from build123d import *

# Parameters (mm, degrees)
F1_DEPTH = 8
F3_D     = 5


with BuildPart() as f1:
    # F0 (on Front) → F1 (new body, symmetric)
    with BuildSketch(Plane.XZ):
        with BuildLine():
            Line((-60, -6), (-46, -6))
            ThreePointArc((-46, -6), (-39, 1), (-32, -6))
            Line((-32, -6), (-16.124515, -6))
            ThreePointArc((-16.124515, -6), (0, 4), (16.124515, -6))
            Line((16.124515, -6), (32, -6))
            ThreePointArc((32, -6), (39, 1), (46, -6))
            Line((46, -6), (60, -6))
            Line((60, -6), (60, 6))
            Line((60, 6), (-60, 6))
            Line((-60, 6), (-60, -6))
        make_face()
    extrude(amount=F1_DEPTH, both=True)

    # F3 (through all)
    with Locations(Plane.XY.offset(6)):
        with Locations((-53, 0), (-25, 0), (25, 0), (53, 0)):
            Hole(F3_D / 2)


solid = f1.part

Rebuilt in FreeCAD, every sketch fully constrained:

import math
import FreeCAD as App
import Part
import Sketcher
Q = App.Units.Quantity

doc = App.newDocument("Part")
body = doc.addObject("PartDesign::Body", "Body")

sketch1 = body.newObject("Sketcher::SketchObject", "Sketch")
sketch1.AttachmentSupport = (doc.getObject("XZ_Plane"), [""])
sketch1.MapMode = "FlatFace"
sketch1.addGeometry([
    Part.LineSegment(App.Vector(-60, -6, 0), App.Vector(-46, -6, 0)),
    Part.ArcOfCircle(Part.Circle(App.Vector(-39, -6, 0), App.Vector(0, 0, 1), 7), math.radians(0), math.radians(180)),
    Part.LineSegment(App.Vector(-32, -6, 0), App.Vector(-16, -6, 0)),
    Part.ArcOfCircle(Part.Circle(App.Vector(0, -14, 0), App.Vector(0, 0, 1), 18), math.radians(26), math.radians(154)),
    Part.LineSegment(App.Vector(16, -6, 0), App.Vector(32, -6, 0)),
    Part.ArcOfCircle(Part.Circle(App.Vector(39, -6, 0), App.Vector(0, 0, 1), 7), math.radians(0), math.radians(180)),
    Part.LineSegment(App.Vector(46, -6, 0), App.Vector(60, -6, 0)),
    Part.LineSegment(App.Vector(60, -6, 0), App.Vector(60, 6, 0)),
    Part.LineSegment(App.Vector(60, 6, 0), App.Vector(-60, 6, 0)),
    Part.LineSegment(App.Vector(-60, 6, 0), App.Vector(-60, -6, 0)),
], False)
sketch1.addConstraint([
    Sketcher.Constraint("Coincident", 0, 2, 1, 2),
    Sketcher.Constraint("Coincident", 1, 1, 2, 1),
    Sketcher.Constraint("Coincident", 2, 2, 3, 2),
    Sketcher.Constraint("Coincident", 3, 1, 4, 1),
    Sketcher.Constraint("Coincident", 4, 2, 5, 2),
    Sketcher.Constraint("Coincident", 5, 1, 6, 1),
    Sketcher.Constraint("Coincident", 6, 2, 7, 1),
    Sketcher.Constraint("Coincident", 7, 2, 8, 1),
    Sketcher.Constraint("Coincident", 8, 2, 9, 1),
    Sketcher.Constraint("Coincident", 9, 2, 0, 1),
    Sketcher.Constraint("Horizontal", 0),
    Sketcher.Constraint("Horizontal", 2),
    Sketcher.Constraint("Horizontal", 4),
    Sketcher.Constraint("Horizontal", 6),
    Sketcher.Constraint("Vertical", 7),
    Sketcher.Constraint("Horizontal", 8),
    Sketcher.Constraint("Vertical", 9),
    Sketcher.Constraint("Equal", 1, 5),
    Sketcher.Constraint("Symmetric", 6, 2, 8, 2, -1, 1),
    Sketcher.Constraint("Symmetric", 1, 3, 5, 3, -2),
    Sketcher.Constraint("Symmetric", 2, 2, 3, 1, -2),
    Sketcher.Constraint("Horizontal", 5, 3, 0, 2),
    Sketcher.Constraint("Horizontal", 0, 2, 1, 1),
    Sketcher.Constraint("Horizontal", 4, 2, 5, 1),
    Sketcher.Constraint("Radius", 1, Q("7 mm")),
    Sketcher.Constraint("Radius", 3, Q("17.999999 mm")),
    Sketcher.Constraint("DistanceX", 0, 1, 0, 2, Q("14 mm")),
    Sketcher.Constraint("DistanceX", 8, 2, 8, 1, Q("120 mm")),
    Sketcher.Constraint("DistanceY", 7, 1, 7, 2, Q("12 mm")),
    Sketcher.Constraint("DistanceY", 3, 3, -1, 1, Q("13.999999 mm")),
])
pad1 = body.newObject("PartDesign::Pad", "Pad")
pad1.Profile = sketch1
pad1.Length = 16
pad1.Midplane = True

sketch2 = body.newObject("Sketcher::SketchObject", "Sketch001")
sketch2.AttachmentSupport = (doc.getObject("XY_Plane"), [""])
sketch2.MapMode = "FlatFace"
sketch2.AttachmentOffset = App.Placement(App.Vector(0, 0, 6), App.Rotation())
sketch2.addGeometry([
    Part.Circle(App.Vector(-53, 0, 0), App.Vector(0, 0, 1), 2.5),
    Part.Circle(App.Vector(-25, 0, 0), App.Vector(0, 0, 1), 2.5),
    Part.Circle(App.Vector(25, 0, 0), App.Vector(0, 0, 1), 2.5),
    Part.Circle(App.Vector(53, 0, 0), App.Vector(0, 0, 1), 2.5),
], False)
sketch2.addConstraint([
    Sketcher.Constraint("Equal", 0, 1),
    Sketcher.Constraint("Equal", 1, 2),
    Sketcher.Constraint("Equal", 2, 3),
    Sketcher.Constraint("Symmetric", 1, 3, 2, 3, -1, 1),
    Sketcher.Constraint("Symmetric", 0, 3, 3, 3, -1, 1),
    Sketcher.Constraint("PointOnObject", 0, 3, -1),
    Sketcher.Constraint("PointOnObject", 1, 3, -1),
    Sketcher.Constraint("Diameter", 0, Q("5 mm")),
    Sketcher.Constraint("DistanceX", 0, 3, -1, 1, Q("53 mm")),
    Sketcher.Constraint("DistanceX", 1, 3, -1, 1, Q("25 mm")),
])
doc.recompute()
hole = body.newObject("PartDesign::Hole", "Hole")
hole.Profile = sketch2
hole.ThreadType = "None"
hole.Diameter = 5
hole.DepthType = "ThroughAll"

doc.recompute()
